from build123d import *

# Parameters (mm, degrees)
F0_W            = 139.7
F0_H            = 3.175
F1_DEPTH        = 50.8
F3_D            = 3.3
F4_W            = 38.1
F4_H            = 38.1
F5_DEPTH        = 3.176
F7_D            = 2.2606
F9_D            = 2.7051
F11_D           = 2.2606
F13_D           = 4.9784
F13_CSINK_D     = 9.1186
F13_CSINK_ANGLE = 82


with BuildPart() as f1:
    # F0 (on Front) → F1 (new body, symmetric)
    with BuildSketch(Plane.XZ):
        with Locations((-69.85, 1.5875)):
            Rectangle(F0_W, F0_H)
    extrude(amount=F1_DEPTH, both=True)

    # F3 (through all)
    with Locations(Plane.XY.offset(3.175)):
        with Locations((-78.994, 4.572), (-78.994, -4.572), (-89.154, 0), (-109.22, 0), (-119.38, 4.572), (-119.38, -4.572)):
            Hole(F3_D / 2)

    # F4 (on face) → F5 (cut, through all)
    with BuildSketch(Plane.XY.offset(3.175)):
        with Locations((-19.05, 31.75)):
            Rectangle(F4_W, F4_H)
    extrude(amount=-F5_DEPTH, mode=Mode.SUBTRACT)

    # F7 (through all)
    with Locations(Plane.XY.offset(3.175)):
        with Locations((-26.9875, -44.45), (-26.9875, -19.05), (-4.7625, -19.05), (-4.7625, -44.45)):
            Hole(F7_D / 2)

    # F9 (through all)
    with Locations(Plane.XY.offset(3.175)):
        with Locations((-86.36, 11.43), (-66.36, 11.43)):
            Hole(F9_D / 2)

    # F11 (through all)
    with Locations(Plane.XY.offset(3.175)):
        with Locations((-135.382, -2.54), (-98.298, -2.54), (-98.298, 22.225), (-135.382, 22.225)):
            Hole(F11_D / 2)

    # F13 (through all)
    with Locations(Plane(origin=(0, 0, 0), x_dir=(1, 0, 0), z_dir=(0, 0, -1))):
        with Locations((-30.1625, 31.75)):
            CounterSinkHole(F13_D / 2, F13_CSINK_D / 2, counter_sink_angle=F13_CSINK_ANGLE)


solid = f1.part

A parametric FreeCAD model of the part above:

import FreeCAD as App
import Part
import Sketcher
from FreeCAD import Vector
Q = App.Units.Quantity

doc = App.newDocument("Part")
body = doc.addObject("PartDesign::Body", "Body")

sketch1 = body.newObject("Sketcher::SketchObject", "Sketch")
sketch1.AttachmentSupport = (doc.getObject("XZ_Plane"), [""])
sketch1.MapMode = "FlatFace"
sketch1.addGeometry(Part.LineSegment(Vector(-139.7, 3.2, 0), Vector(-139.7, 0, 0)), False)
sketch1.addGeometry(Part.LineSegment(Vector(-139.7, 0, 0), Vector(0, 0, 0)), False)
sketch1.addGeometry(Part.LineSegment(Vector(0, 0, 0), Vector(0, 3.2, 0)), False)
sketch1.addGeometry(Part.LineSegment(Vector(0, 3.2, 0), Vector(-139.7, 3.2, 0)), False)
sketch1.addConstraint(Sketcher.Constraint("Coincident", 0, 2, 1, 1))
sketch1.addConstraint(Sketcher.Constraint("Coincident", 1, 2, 2, 1))
sketch1.addConstraint(Sketcher.Constraint("Coincident", 2, 2, 3, 1))
sketch1.addConstraint(Sketcher.Constraint("Coincident", 3, 2, 0, 1))
sketch1.addConstraint(Sketcher.Constraint("Vertical", 0))
sketch1.addConstraint(Sketcher.Constraint("Horizontal", 1))
sketch1.addConstraint(Sketcher.Constraint("Vertical", 2))
sketch1.addConstraint(Sketcher.Constraint("Horizontal", 3))
sketch1.addConstraint(Sketcher.Constraint("Coincident", 1, 2, -1, 1))
sketch1.addConstraint(Sketcher.Constraint("DistanceX", 1, 1, 1, 2, Q("5.5 in")))
sketch1.addConstraint(Sketcher.Constraint("DistanceY", 0, 2, 0, 1, Q("0.125 in")))
pad1 = body.newObject("PartDesign::Pad", "Pad")
pad1.Profile = sketch1
pad1.Length = Q("4 in")
pad1.Midplane = True

sketch2 = body.newObject("Sketcher::SketchObject", "Sketch001")
sketch2.AttachmentSupport = (doc.getObject("XY_Plane"), [""])
sketch2.MapMode = "FlatFace"
sketch2.AttachmentOffset = App.Placement(Vector(0, 0, 0.125 * 25.4), App.Rotation())
sketch2.addGeometry(Part.Circle(Vector(-79, 4.6, 0), Vector(0, 0, 1), 1.6), False)
sketch2.addGeometry(Part.Circle(Vector(-79, -4.6, 0), Vector(0, 0, 1), 1.6), False)
sketch2.addGeometry(Part.Circle(Vector(-89.2, 0, 0), Vector(0, 0, 1), 1.6), False)
sketch2.addGeometry(Part.Circle(Vector(-109.2, 0, 0), Vector(0, 0, 1), 1.6), False)
sketch2.addGeometry(Part.Circle(Vector(-119.4, 4.6, 0), Vector(0, 0, 1), 1.6), False)
sketch2.addGeometry(Part.Circle(Vector(-119.4, -4.6, 0), Vector(0, 0, 1), 1.6), False)
sketch2.addConstraint(Sketcher.Constraint("Equal", 0, 1))
sketch2.addConstraint(Sketcher.Constraint("Equal", 1, 2))
sketch2.addConstraint(Sketcher.Constraint("Equal", 2, 3))
sketch2.addConstraint(Sketcher.Constraint("Equal", 3, 4))
sketch2.addConstraint(Sketcher.Constraint("Equal", 4, 5))
sketch2.addConstraint(Sketcher.Constraint("Symmetric", 0, 3, 1, 3, -1))
sketch2.addConstraint(Sketcher.Constraint("Symmetric", 4, 3, 5, 3, -1))
sketch2.addConstraint(Sketcher.Constraint("PointOnObject", 2, 3, -1))
sketch2.addConstraint(Sketcher.Constraint("PointOnObject", 3, 3, -1))
sketch2.addConstraint(Sketcher.Constraint("Horizontal", 0, 3, 4, 3))
sketch2.addConstraint(Sketcher.Constraint("DistanceX", 3, 3, -1, 1, Q("4.3 in")))
sketch2.addConstraint(Sketcher.Constraint("DistanceX", 4, 3, -1, 1, Q("4.7 in")))
sketch2.addConstraint(Sketcher.Constraint("DistanceX", 2, 3, 0, 3, Q("0.4 in")))
sketch2.addConstraint(Sketcher.Constraint("Diameter", 0, 3.3))
sketch2.addConstraint(Sketcher.Constraint("DistanceX", 0, 3, -1, 1, Q("3.11 in")))
sketch2.addConstraint(Sketcher.Constraint("DistanceY", -1, 1, 0, 3, Q("0.18 in")))
doc.recompute()
hole = body.newObject("PartDesign::Hole", "Hole")
hole.Profile = sketch2
hole.ThreadType = "None"
hole.Diameter = 3.3
hole.DepthType = "ThroughAll"

sketch3 = body.newObject("Sketcher::SketchObject", "Sketch002")
sketch3.AttachmentSupport = (doc.getObject("XY_Plane"), [""])
sketch3.MapMode = "FlatFace"
sketch3.AttachmentOffset = App.Placement(Vector(0, 0, 0.125 * 25.4), App.Rotation())
sketch3.addGeometry(Part.LineSegment(Vector(-38, 51, 0), Vector(-38, 13, 0)), False)
sketch3.addGeometry(Part.LineSegment(Vector(-38, 13, 0), Vector(0, 13, 0)), False)
sketch3.addGeometry(Part.LineSegment(Vector(0, 13, 0), Vector(0, 51, 0)), False)
sketch3.addGeometry(Part.LineSegment(Vector(0, 51, 0), Vector(-38, 51, 0)), False)
sketch3.addConstraint(Sketcher.Constraint("Coincident", 0, 2, 1, 1))
sketch3.addConstraint(Sketcher.Constraint("Coincident", 1, 2, 2, 1))
sketch3.addConstraint(Sketcher.Constraint("Coincident", 2, 2, 3, 1))
sketch3.addConstraint(Sketcher.Constraint("Coincident", 3, 2, 0, 1))
sketch3.addConstraint(Sketcher.Constraint("Vertical", 0))
sketch3.addConstraint(Sketcher.Constraint("Horizontal", 1))
sketch3.addConstraint(Sketcher.Constraint("Vertical", 2))
sketch3.addConstraint(Sketcher.Constraint("Horizontal", 3))
sketch3.addConstraint(Sketcher.Constraint("PointOnObject", 1, 2, -2))
sketch3.addConstraint(Sketcher.Constraint("Equal", 3, 0))
sketch3.addConstraint(Sketcher.Constraint("DistanceX", 1, 1, 1, 2, Q("1.5 in")))
sketch3.addConstraint(Sketcher.Constraint("DistanceY", -1, 1, 2, 2, Q("2 in")))
pocket1 = body.newObject("PartDesign::Pocket", "Pocket")
pocket1.Profile = sketch3
pocket1.Type = "ThroughAll"

sketch4 = body.newObject("Sketcher::SketchObject", "Sketch003")
sketch4.AttachmentSupport = (doc.getObject("XY_Plane"), [""])
sketch4.MapMode = "FlatFace"
sketch4.AttachmentOffset = App.Placement(Vector(0, 0, 0.125 * 25.4), App.Rotation())
sketch4.addGeometry(Part.Circle(Vector(-27, -44.5, 0), Vector(0, 0, 1), 1.1), False)
sketch4.addGeometry(Part.Circle(Vector(-27, -19.1, 0), Vector(0, 0, 1), 1.1), False)
sketch4.addGeometry(Part.Circle(Vector(-4.8, -19.1, 0), Vector(0, 0, 1), 1.1), False)
sketch4.addGeometry(Part.Circle(Vector(-4.8, -44.5, 0), Vector(0, 0, 1), 1.1), False)
sketch4.addConstraint(Sketcher.Constraint("Equal", 0, 1))
sketch4.addConstraint(Sketcher.Constraint("Equal", 1, 2))
sketch4.addConstraint(Sketcher.Constraint("Equal", 2, 3))
sketch4.addConstraint(Sketcher.Constraint("Horizontal", 1, 3, 2, 3))
sketch4.addConstraint(Sketcher.Constraint("Horizontal", 0, 3, 3, 3))
sketch4.addConstraint(Sketcher.Constraint("Vertical", 0, 3, 1, 3))
sketch4.addConstraint(Sketcher.Constraint("Vertical", 2, 3, 3, 3))
sketch4.addConstraint(Sketcher.Constraint("Diameter", 0, Q("0.089 in")))
sketch4.addConstraint(Sketcher.Constraint("DistanceY", 0, 3, 1, 3, Q("1 in")))
sketch4.addConstraint(Sketcher.Constraint("DistanceY", 0, 3, -1, 1, Q("1.75 in")))
sketch4.addConstraint(Sketcher.Constraint("DistanceX", 0, 3, -1, 1, Q("1.0625 in")))
sketch4.addConstraint(Sketcher.Constraint("DistanceX", 2, 3, -1, 1, Q("0.1875 in")))
doc.recompute()
hole2 = body.newObject("PartDesign::Hole", "Hole001")
hole2.Profile = sketch4
hole2.ThreadType = "None"
hole2.Diameter = Q("0.089 in")
hole2.DepthType = "ThroughAll"

sketch5 = body.newObject("Sketcher::SketchObject", "Sketch004")
sketch5.AttachmentSupport = (doc.getObject("XY_Plane"), [""])
sketch5.MapMode = "FlatFace"
sketch5.AttachmentOffset = App.Placement(Vector(0, 0, 0.125 * 25.4), App.Rotation())
sketch5.addGeometry(Part.Circle(Vector(-86.4, 11.4, 0), Vector(0, 0, 1), 1.4), False)
sketch5.addGeometry(Part.Circle(Vector(-66.4, 11.4, 0), Vector(0, 0, 1), 1.4), False)
sketch5.addConstraint(Sketcher.Constraint("Equal", 0, 1))
sketch5.addConstraint(Sketcher.Constraint("Horizontal", 0, 3, 1, 3))
sketch5.addConstraint(Sketcher.Constraint("Diameter", 0, Q("0.1065 in")))
sketch5.addConstraint(Sketcher.Constraint("DistanceX", 0, 3, -1, 1, Q("3.4 in")))
sketch5.addConstraint(Sketcher.Constraint("DistanceY", -1, 1, 0, 3, Q("0.45 in")))
sketch5.addConstraint(Sketcher.Constraint("DistanceX", 1, 3, -1, 1, 66.36))
doc.recompute()
hole3 = body.newObject("PartDesign::Hole", "Hole002")
hole3.Profile = sketch5
hole3.ThreadType = "None"
hole3.Diameter = Q("0.1065 in")
hole3.DepthType = "ThroughAll"

sketch6 = body.newObject("Sketcher::SketchObject", "Sketch005")
sketch6.AttachmentSupport = (doc.getObject("XY_Plane"), [""])
sketch6.MapMode = "FlatFace"
sketch6.AttachmentOffset = App.Placement(Vector(0, 0, 0.125 * 25.4), App.Rotation())
sketch6.addGeometry(Part.Circle(Vector(-135.4, -2.5, 0), Vector(0, 0, 1), 1.1), False)
sketch6.addGeometry(Part.Circle(Vector(-98.3, -2.5, 0), Vector(0, 0, 1), 1.1), False)
sketch6.addGeometry(Part.Circle(Vector(-98.3, 22.2, 0), Vector(0, 0, 1), 1.1), False)
sketch6.addGeometry(Part.Circle(Vector(-135.4, 22.2, 0), Vector(0, 0, 1), 1.1), False)
sketch6.addConstraint(Sketcher.Constraint("Equal", 0, 1))
sketch6.addConstraint(Sketcher.Constraint("Equal", 1, 2))
sketch6.addConstraint(Sketcher.Constraint("Equal", 2, 3))
sketch6.addConstraint(Sketcher.Constraint("Horizontal", 0, 3, 1, 3))
sketch6.addConstraint(Sketcher.Constraint("Horizontal", 2, 3, 3, 3))
sketch6.addConstraint(Sketcher.Constraint("Vertical", 1, 3, 2, 3))
sketch6.addConstraint(Sketcher.Constraint("Vertical", 0, 3, 3, 3))
sketch6.addConstraint(Sketcher.Constraint("Diameter", 0, Q("0.089 in")))
sketch6.addConstraint(Sketcher.Constraint("DistanceY", 0, 3, -1, 1, Q("0.1 in")))
sketch6.addConstraint(Sketcher.Constraint("DistanceX", 0, 3, -1, 1, Q("5.33 in")))
sketch6.addConstraint(Sketcher.Constraint("DistanceX", 1, 3, -1, 1, Q("3.87 in")))
sketch6.addConstraint(Sketcher.Constraint("DistanceY", -1, 1, 2, 3, Q("0.875 in")))
doc.recompute()
hole4 = body.newObject("PartDesign::Hole", "Hole003")
hole4.Profile = sketch6
hole4.ThreadType = "None"
hole4.Diameter = Q("0.089 in")
hole4.DepthType = "ThroughAll"

sketch7 = body.newObject("Sketcher::SketchObject", "Sketch006")
sketch7.AttachmentSupport = (doc.getObject("XY_Plane"), [""])
sketch7.MapMode = "FlatFace"
sketch7.addGeometry(Part.Circle(Vector(-30.2, -31.8, 0), Vector(0, 0, 1), 2.5), False)
sketch7.addConstraint(Sketcher.Constraint("Diameter", 0, Q("0.196 in")))
sketch7.addConstraint(Sketcher.Constraint("DistanceY", 0, 3, -1, 1, Q("1.25 in")))
sketch7.addConstraint(Sketcher.Constraint("DistanceX", 0, 3, -1, 1, Q("1.1875 in")))
doc.recompute()
hole5 = body.newObject("PartDesign::Hole", "Hole004")
hole5.Profile = sketch7
hole5.ThreadType = "None"
hole5.Diameter = Q("0.196 in")
hole5.DepthType = "ThroughAll"
hole5.HoleCutType = "Countersink"
hole5.HoleCutDiameter = Q("0.359 in")
hole5.HoleCutCountersinkAngle = 82
hole5.Reversed = True

doc.recompute()
